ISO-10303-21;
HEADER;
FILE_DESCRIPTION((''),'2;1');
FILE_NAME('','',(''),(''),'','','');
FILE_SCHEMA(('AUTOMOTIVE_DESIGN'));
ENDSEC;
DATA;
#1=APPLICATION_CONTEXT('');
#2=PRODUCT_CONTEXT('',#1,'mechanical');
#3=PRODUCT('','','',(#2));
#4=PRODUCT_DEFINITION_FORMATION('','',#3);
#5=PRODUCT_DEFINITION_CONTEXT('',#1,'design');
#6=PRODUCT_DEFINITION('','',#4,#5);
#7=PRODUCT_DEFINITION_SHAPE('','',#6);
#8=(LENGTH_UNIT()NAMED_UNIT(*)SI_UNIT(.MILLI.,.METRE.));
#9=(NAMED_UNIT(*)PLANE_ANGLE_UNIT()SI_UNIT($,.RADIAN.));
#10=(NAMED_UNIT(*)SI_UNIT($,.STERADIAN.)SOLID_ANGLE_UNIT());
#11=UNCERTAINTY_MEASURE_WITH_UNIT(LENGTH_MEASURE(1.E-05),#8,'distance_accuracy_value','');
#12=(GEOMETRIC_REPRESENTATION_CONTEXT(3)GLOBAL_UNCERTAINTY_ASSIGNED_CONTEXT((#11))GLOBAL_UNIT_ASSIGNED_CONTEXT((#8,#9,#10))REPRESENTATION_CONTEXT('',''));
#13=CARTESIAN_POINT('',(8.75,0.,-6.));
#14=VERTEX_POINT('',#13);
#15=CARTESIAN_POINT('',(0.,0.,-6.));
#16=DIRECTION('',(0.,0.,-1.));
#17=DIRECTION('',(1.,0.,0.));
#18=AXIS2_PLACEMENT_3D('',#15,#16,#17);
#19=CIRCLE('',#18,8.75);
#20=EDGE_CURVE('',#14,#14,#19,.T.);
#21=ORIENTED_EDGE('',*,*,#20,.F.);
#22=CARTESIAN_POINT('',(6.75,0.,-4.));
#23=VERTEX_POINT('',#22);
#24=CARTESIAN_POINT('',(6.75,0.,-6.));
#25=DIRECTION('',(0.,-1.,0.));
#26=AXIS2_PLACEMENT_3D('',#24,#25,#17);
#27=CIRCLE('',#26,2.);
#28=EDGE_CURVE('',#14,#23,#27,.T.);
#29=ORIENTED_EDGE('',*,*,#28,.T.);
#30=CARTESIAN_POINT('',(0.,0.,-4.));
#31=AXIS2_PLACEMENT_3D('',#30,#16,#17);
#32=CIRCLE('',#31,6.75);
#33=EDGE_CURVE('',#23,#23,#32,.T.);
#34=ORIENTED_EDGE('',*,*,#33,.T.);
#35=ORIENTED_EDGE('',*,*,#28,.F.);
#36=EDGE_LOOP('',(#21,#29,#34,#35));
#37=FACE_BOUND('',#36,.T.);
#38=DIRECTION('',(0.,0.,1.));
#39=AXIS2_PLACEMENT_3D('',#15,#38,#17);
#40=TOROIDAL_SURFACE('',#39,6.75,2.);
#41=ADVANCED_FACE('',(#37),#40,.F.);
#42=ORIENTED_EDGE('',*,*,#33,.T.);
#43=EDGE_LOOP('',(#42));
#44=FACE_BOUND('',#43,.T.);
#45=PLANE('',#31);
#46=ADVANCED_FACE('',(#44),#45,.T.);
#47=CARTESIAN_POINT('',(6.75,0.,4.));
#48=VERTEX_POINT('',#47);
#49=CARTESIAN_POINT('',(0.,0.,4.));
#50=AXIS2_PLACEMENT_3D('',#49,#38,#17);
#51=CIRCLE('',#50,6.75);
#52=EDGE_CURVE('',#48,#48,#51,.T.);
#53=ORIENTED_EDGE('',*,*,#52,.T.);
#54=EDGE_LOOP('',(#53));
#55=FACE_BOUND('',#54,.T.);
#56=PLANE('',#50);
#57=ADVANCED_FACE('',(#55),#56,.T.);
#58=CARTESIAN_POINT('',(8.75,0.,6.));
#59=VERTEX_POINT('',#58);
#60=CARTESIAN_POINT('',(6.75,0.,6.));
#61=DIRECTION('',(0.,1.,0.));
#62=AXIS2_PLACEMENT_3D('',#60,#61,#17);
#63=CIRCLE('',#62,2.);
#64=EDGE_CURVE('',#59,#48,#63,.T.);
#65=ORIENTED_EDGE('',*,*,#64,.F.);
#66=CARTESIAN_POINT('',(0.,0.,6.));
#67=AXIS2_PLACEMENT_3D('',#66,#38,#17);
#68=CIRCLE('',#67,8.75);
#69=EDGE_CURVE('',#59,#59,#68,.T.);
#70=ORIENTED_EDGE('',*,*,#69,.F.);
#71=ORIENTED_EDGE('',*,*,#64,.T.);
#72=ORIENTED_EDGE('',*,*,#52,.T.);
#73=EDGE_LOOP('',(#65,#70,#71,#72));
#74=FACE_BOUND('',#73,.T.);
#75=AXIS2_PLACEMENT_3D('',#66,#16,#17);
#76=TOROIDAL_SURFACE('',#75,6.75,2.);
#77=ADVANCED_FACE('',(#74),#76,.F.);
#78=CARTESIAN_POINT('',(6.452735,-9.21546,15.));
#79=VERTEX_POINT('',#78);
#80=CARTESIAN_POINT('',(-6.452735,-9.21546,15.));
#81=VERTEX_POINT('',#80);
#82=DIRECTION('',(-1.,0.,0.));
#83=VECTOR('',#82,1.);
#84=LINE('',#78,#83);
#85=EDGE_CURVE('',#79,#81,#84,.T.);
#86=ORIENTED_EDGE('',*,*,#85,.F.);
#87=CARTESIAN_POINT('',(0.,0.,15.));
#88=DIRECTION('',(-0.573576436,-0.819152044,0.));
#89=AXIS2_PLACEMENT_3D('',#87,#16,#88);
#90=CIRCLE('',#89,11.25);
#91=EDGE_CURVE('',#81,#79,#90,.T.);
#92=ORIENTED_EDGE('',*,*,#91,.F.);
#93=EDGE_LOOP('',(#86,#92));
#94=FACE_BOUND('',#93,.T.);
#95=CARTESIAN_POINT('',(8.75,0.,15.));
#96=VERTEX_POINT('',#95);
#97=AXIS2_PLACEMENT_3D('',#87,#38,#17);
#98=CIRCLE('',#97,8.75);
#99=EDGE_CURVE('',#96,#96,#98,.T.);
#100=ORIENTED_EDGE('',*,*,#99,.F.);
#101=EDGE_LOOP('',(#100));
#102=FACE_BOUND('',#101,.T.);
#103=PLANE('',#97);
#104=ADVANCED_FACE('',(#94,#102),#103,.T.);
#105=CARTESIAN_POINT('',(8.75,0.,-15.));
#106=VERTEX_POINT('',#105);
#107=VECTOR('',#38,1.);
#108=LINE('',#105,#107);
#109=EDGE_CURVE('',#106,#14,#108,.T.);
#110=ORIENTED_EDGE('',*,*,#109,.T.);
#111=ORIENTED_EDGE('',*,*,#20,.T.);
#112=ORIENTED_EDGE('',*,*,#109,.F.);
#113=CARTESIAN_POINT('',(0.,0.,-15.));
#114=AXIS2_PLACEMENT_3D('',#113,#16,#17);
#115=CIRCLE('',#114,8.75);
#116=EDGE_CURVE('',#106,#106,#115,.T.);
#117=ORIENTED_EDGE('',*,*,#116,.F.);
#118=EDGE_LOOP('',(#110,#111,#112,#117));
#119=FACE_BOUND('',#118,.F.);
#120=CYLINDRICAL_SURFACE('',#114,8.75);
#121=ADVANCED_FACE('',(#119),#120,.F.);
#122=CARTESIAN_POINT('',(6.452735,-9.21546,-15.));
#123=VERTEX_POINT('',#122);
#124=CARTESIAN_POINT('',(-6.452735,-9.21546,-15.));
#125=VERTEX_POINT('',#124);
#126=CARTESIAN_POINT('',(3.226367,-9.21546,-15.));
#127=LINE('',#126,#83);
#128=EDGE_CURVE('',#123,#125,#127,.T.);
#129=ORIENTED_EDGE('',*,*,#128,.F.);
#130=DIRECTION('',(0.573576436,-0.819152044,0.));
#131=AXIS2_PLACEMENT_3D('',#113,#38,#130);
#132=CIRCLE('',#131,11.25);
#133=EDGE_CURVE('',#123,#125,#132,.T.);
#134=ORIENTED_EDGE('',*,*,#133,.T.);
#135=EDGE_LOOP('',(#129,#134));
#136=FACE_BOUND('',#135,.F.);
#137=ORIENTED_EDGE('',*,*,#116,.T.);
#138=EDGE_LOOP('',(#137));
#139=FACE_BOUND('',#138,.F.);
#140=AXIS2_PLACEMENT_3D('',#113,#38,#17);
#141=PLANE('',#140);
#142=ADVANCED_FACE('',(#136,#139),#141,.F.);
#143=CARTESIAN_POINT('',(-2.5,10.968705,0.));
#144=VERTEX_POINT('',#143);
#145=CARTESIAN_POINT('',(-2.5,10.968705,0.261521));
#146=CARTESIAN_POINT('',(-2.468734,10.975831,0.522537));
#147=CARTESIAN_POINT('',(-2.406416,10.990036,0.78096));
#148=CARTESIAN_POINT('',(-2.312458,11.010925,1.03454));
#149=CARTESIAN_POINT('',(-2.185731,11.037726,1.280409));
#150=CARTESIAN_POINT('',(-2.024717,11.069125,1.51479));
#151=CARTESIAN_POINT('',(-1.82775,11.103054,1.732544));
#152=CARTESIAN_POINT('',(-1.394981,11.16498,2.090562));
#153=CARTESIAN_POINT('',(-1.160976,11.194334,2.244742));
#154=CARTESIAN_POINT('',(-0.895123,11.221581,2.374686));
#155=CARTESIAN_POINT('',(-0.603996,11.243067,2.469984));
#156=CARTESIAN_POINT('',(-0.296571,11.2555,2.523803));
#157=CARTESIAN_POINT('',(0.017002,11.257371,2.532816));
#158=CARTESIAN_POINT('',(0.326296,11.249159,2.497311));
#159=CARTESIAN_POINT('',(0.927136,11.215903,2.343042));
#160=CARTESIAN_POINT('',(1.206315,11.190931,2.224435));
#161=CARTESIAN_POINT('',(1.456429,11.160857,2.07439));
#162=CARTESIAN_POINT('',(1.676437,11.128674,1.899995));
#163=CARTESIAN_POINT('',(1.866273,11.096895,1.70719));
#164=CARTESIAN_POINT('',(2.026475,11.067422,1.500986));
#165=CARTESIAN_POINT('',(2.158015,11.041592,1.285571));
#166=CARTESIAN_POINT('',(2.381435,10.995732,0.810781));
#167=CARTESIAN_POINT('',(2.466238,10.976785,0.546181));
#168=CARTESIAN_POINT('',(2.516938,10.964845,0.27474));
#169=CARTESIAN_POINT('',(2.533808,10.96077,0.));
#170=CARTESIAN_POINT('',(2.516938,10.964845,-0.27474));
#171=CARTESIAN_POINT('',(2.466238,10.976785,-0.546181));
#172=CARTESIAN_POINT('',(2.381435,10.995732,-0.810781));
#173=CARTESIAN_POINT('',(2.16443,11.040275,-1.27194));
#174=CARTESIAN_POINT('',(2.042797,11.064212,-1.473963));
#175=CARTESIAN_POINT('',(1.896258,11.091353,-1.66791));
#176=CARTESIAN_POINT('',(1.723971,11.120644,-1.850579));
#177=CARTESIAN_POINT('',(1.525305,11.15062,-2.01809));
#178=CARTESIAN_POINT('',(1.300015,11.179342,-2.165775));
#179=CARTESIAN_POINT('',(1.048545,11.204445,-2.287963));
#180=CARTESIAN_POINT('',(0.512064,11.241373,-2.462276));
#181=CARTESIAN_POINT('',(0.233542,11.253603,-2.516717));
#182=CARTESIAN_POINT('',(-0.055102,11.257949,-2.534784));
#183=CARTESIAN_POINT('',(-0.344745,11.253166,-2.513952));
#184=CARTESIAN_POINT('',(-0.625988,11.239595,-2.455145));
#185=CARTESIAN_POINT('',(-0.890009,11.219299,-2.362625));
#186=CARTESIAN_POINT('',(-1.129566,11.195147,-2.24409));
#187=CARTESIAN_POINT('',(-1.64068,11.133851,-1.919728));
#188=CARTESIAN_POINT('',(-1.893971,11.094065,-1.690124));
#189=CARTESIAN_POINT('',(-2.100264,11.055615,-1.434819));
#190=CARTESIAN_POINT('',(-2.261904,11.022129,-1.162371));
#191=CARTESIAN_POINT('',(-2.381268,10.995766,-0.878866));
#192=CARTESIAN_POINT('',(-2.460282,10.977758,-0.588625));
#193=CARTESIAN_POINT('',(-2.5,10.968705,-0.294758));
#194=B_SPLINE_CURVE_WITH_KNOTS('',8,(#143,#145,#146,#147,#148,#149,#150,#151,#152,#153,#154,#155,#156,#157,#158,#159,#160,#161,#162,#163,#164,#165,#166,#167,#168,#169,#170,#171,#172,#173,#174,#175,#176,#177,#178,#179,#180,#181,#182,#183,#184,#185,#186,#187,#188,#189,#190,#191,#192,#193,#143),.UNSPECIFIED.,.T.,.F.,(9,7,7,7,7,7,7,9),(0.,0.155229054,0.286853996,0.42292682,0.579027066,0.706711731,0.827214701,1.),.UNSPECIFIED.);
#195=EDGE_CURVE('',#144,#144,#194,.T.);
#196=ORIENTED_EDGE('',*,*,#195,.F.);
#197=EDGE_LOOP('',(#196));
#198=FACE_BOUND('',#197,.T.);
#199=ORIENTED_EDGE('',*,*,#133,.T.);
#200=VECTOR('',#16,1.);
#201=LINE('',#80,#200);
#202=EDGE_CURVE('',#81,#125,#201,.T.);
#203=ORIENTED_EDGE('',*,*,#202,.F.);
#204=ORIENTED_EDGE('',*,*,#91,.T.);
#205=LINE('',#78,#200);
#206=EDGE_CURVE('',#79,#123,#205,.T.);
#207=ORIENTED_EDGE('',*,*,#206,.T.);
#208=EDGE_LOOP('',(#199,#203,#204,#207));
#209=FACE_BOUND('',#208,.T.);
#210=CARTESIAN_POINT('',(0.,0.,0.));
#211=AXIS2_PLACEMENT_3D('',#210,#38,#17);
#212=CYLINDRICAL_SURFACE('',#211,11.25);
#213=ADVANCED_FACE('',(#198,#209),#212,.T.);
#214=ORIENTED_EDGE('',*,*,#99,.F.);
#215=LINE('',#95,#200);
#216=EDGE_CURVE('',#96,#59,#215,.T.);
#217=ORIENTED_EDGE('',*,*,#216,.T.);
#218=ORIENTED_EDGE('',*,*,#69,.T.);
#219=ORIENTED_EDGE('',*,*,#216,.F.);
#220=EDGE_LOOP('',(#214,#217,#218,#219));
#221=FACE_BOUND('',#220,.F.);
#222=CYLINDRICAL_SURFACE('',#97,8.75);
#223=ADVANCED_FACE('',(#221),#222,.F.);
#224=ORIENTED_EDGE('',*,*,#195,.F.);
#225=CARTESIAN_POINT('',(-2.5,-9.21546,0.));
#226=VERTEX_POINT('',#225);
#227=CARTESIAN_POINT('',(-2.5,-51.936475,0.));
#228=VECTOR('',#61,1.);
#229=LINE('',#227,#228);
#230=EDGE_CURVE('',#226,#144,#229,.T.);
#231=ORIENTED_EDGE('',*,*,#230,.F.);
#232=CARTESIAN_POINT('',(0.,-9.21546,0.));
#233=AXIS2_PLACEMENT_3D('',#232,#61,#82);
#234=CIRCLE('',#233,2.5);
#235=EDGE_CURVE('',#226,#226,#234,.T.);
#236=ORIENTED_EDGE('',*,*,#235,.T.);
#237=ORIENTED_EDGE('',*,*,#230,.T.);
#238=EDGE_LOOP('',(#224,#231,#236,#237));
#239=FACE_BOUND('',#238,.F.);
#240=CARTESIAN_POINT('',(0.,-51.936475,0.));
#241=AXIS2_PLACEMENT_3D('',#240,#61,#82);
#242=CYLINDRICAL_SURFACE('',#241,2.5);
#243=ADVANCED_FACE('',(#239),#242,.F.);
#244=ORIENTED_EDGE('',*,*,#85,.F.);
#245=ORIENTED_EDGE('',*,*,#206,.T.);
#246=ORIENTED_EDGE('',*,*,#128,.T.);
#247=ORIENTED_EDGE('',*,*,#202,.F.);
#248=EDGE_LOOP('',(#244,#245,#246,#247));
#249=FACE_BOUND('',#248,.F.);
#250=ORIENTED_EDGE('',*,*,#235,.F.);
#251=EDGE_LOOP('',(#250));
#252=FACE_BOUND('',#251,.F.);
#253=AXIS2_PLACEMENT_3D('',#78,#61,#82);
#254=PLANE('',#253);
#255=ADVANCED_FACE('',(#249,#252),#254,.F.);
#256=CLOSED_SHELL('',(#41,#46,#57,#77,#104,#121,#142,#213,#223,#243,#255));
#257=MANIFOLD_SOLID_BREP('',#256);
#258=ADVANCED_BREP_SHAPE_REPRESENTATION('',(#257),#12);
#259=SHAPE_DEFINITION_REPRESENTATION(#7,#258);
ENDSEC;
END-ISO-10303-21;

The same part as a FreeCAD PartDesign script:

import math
import FreeCAD as App
import Part
import Sketcher
from FreeCAD import Vector
Q = App.Units.Quantity


def edges_at(feature, points):
    """Names of the edges that pass closest to the given points."""
    edges = feature.Shape.Edges
    near = lambda p: min(range(len(edges)), key=lambda i: edges[i].distToShape(Part.Vertex(*p))[0])
    return sorted({f"Edge{near(p) + 1}" for p in points})

doc = App.newDocument("Part")
params = doc.addObject("Spreadsheet::Sheet", "Params")
for row, (alias, value) in enumerate([
    ("sketch1_diameter", "22.5 mm"),
    ("pad1_length", "15 mm"),
    ("pad1_length2", "15 mm"),
    ("sketch2_radius", "11.25 mm"),
    ("sketch3_diameter", "17.5 mm"),
    ("pocket2_length", "11 mm"),
    ("sketch4_diameter", "17.5 mm"),
    ("pocket3_length", "11 mm"),
    ("sketch5_diameter", "5 mm"),
    ("hole_diameter", "5 mm"),
    ("fillet_radius", "2 mm"),
    ("fillet2_radius", "2 mm"),
], start=1):
    params.set(f"A{row}", alias)
    params.set(f"B{row}", "=" + value)
    params.setAlias(f"B{row}", alias)

body = doc.addObject("PartDesign::Body", "Body")

# Sketch on XY plane
sketch1 = body.newObject("Sketcher::SketchObject", "Sketch")
sketch1.AttachmentSupport = (doc.getObject("XY_Plane"), [""])
sketch1.MapMode = "FlatFace"
sketch1.addGeometry(Part.Circle(Vector(0, 0, 0), Vector(0, 0, 1), 11), False)
sketch1.addConstraint([
    Sketcher.Constraint("Coincident", 0, 3, -1, 1),
    Sketcher.Constraint("Diameter", 0, Q("22.5 mm")),
])
sketch1.setExpression("Constraints[1]", "Params.sketch1_diameter")
pad1 = body.newObject("PartDesign::Pad", "Pad")
pad1.Profile = sketch1
pad1.Type = "TwoLengths"
pad1.setExpression("Length", "Params.pad1_length")
pad1.setExpression("Length2", "Params.pad1_length2")

# Sketch on XY plane
sketch2 = body.newObject("Sketcher::SketchObject", "Sketch001")
sketch2.AttachmentSupport = (doc.getObject("XY_Plane"), [""])
sketch2.MapMode = "FlatFace"
sketch2.AttachmentOffset = App.Placement(Vector(0, 0, 15), App.Rotation())
sketch2.addGeometry([
    Part.LineSegment(Vector(6, -9, 0), Vector(-6, -9, 0)),
    Part.ArcOfCircle(Part.Circle(Vector(0, 0, 0), Vector(0, 0, 1), 11), math.radians(-125), math.radians(-55)),
], False)
sketch2.addConstraint([
    Sketcher.Constraint("Coincident", 0, 1, 1, 2),
    Sketcher.Constraint("Coincident", 1, 1, 0, 2),
    Sketcher.Constraint("Horizontal", 0),
    Sketcher.Constraint("Coincident", 1, 3, -1, 1),
    Sketcher.Constraint("Radius", 1, Q("11.25 mm")),
    Sketcher.Constraint("DistanceX", 0, 2, 0, 1, Q("12.90547 mm")),
])
sketch2.setExpression("Constraints[4]", "Params.sketch2_radius")
pocket1 = body.newObject("PartDesign::Pocket", "Pocket")
pocket1.Profile = sketch2
pocket1.Type = "ThroughAll"

# Sketch on XY plane
sketch3 = body.newObject("Sketcher::SketchObject", "Sketch002")
sketch3.AttachmentSupport = (doc.getObject("XY_Plane"), [""])
sketch3.MapMode = "FlatFace"
sketch3.AttachmentOffset = App.Placement(Vector(0, 0, 15), App.Rotation())
sketch3.addGeometry(Part.Circle(Vector(0, 0, 0), Vector(0, 0, 1), 9), False)
sketch3.addConstraint([
    Sketcher.Constraint("Coincident", 0, 3, -1, 1),
    Sketcher.Constraint("Diameter", 0, Q("17.5 mm")),
])
sketch3.setExpression("Constraints[1]", "Params.sketch3_diameter")
pocket2 = body.newObject("PartDesign::Pocket", "Pocket001")
pocket2.Profile = sketch3
pocket2.setExpression("Length", "Params.pocket2_length")

# Sketch on XY plane
sketch4 = body.newObject("Sketcher::SketchObject", "Sketch003")
sketch4.AttachmentSupport = (doc.getObject("XY_Plane"), [""])
sketch4.MapMode = "FlatFace"
sketch4.AttachmentOffset = App.Placement(Vector(0, 0, -15), App.Rotation())
sketch4.addGeometry(Part.Circle(Vector(0, 0, 0), Vector(0, 0, 1), 9), False)
sketch4.addConstraint([
    Sketcher.Constraint("Coincident", 0, 3, -1, 1),
    Sketcher.Constraint("Diameter", 0, Q("17.5 mm")),
])
sketch4.setExpression("Constraints[1]", "Params.sketch4_diameter")
pocket3 = body.newObject("PartDesign::Pocket", "Pocket002")
pocket3.Profile = sketch4
pocket3.setExpression("Length", "Params.pocket3_length")
pocket3.Reversed = True

# Sketch on XZ plane
sketch5 = body.newObject("Sketcher::SketchObject", "Sketch004")
sketch5.AttachmentSupport = (doc.getObject("XZ_Plane"), [""])
sketch5.MapMode = "FlatFace"
sketch5.AttachmentOffset = App.Placement(Vector(0, 0, 9.21546), App.Rotation())
sketch5.addGeometry(Part.Circle(Vector(0, 0, 0), Vector(0, 0, 1), 2.5), False)
sketch5.addConstraint([
    Sketcher.Constraint("Coincident", 0, 3, -1, 1),
    Sketcher.Constraint("Diameter", 0, Q("5 mm")),
])
sketch5.setExpression("Constraints[1]", "Params.sketch5_diameter")
doc.recompute()
hole = body.newObject("PartDesign::Hole", "Hole")
hole.Profile = sketch5
hole.ThreadType = "None"
hole.setExpression("Diameter", "Params.hole_diameter")
hole.DepthType = "ThroughAll"
doc.recompute()

fillet = body.newObject("PartDesign::Fillet", "Fillet")
fillet.Base = (hole, edges_at(hole, [(-8.75, 0, 4)]))
fillet.setExpression("Radius", "Params.fillet_radius")
doc.recompute()

fillet2 = body.newObject("PartDesign::Fillet", "Fillet001")
fillet2.Base = (fillet, edges_at(fillet, [(-8.75, 0, -4)]))
fillet2.setExpression("Radius", "Params.fillet2_radius")

doc.recompute()
